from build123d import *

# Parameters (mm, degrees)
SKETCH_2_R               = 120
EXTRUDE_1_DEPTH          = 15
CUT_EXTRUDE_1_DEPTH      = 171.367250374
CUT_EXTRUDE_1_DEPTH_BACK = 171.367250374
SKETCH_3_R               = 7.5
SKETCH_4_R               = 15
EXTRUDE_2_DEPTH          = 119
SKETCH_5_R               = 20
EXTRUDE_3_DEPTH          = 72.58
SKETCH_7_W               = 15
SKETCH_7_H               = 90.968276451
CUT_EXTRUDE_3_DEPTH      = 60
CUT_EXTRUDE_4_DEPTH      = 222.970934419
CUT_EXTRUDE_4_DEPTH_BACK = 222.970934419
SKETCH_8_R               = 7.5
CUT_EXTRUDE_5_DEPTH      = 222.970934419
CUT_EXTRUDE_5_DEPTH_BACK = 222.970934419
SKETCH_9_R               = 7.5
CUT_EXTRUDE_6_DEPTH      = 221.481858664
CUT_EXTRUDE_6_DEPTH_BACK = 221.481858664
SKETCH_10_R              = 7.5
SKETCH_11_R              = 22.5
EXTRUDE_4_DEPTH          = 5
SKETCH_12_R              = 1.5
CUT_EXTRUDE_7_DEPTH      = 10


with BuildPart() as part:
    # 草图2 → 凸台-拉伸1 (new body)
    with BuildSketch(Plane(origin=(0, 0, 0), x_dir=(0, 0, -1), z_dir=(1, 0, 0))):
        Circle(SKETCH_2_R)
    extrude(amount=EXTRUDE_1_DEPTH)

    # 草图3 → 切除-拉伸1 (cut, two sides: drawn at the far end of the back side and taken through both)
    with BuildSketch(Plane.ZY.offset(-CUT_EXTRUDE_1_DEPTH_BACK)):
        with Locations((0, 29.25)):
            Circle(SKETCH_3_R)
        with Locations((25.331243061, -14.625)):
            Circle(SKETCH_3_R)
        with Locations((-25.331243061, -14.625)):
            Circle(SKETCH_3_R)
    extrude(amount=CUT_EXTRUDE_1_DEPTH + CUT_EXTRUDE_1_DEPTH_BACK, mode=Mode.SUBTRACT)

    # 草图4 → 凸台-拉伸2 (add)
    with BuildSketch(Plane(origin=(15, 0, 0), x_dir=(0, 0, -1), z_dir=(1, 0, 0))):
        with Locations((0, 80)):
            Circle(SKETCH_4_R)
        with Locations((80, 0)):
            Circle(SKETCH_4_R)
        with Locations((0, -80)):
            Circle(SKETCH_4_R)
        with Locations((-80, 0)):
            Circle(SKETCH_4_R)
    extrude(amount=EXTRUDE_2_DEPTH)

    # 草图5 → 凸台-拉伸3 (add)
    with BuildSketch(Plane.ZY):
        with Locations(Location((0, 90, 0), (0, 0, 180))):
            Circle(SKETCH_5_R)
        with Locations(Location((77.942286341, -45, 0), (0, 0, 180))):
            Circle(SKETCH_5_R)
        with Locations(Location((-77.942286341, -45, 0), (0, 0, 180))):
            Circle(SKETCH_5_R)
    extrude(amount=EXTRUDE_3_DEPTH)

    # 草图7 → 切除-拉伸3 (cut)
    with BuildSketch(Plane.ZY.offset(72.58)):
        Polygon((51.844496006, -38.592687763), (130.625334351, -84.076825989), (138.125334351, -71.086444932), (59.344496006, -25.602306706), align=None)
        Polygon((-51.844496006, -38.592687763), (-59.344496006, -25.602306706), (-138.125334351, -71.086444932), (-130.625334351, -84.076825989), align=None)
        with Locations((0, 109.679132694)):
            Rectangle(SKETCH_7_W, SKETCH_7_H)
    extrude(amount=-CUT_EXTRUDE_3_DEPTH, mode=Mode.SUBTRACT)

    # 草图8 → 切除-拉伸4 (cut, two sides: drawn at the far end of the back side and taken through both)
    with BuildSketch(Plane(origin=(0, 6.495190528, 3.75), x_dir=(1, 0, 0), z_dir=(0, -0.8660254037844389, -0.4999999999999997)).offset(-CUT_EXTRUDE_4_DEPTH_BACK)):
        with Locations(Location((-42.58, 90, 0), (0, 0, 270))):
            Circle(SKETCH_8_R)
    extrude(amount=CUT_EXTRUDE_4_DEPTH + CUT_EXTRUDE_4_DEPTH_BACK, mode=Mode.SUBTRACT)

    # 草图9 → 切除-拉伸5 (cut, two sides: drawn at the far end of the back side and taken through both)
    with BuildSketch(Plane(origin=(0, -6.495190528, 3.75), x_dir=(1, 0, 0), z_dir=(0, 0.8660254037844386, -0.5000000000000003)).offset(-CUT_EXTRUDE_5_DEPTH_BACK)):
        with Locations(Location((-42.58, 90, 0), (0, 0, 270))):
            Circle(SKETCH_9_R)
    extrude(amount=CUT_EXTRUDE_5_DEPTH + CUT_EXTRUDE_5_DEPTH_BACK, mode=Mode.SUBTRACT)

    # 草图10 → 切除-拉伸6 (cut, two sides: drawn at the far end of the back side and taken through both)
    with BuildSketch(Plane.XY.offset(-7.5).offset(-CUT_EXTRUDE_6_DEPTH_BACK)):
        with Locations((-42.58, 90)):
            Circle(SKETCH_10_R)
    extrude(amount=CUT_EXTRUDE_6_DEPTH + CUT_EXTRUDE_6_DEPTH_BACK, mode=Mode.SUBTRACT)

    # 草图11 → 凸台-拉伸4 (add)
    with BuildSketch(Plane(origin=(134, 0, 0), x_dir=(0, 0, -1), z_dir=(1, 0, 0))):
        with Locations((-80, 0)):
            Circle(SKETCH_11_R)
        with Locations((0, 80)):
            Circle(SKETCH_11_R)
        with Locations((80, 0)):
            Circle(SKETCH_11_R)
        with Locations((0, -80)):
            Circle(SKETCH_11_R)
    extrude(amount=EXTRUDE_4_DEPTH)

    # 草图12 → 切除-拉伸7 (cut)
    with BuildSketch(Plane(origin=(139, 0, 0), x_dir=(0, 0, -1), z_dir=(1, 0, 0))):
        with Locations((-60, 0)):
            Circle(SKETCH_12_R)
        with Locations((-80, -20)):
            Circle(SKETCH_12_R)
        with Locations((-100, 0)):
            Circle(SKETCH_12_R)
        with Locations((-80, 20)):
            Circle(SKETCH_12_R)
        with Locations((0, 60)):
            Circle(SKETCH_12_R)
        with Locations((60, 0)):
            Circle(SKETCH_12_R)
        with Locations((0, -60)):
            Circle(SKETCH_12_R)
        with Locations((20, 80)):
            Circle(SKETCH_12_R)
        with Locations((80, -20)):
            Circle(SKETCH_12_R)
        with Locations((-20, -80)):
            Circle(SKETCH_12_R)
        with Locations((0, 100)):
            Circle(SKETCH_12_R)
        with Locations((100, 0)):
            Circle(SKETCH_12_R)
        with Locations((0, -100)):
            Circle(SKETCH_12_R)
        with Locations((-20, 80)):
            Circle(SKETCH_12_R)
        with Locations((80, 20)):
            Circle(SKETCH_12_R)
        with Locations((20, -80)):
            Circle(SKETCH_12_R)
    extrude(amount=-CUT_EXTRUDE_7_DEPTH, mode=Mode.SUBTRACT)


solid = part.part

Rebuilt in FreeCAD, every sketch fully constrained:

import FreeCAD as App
import Part
import Sketcher

V = App.Vector
Q = App.Units.Quantity


def add_polygon(sketch, points):
    """Adds a closed chain of lines whose ends are joined by coincident constraints."""
    first, n = sketch.GeometryCount, len(points)
    for a, b in zip(points, points[1:] + points[:1]):
        sketch.addGeometry(Part.LineSegment(App.Vector(*a, 0), App.Vector(*b, 0)), False)
    for i in range(n):
        sketch.addConstraint(Sketcher.Constraint("Coincident", first + i, 2, first + (i + 1) % n, 1))

doc = App.newDocument("Part")
body = doc.addObject("PartDesign::Body", "Body")

# Sketch on YZ plane
sketch1 = doc.addObject("Sketcher::SketchObject", "Sketch")
body.addObject(sketch1)
sketch1.AttachmentSupport = (doc.YZ_Plane, [""])
sketch1.MapMode = "FlatFace"
sketch1.addGeometry(Part.Circle(V(0, 0, 0), V(0, 0, 1), 120), False)
sketch1.addConstraint(Sketcher.Constraint("Coincident", 0, 3, -1, 1))
sketch1.addConstraint(Sketcher.Constraint("Diameter", 0, 240.0))
pad1 = doc.addObject("PartDesign::Pad", "Pad")
body.addObject(pad1)
pad1.Profile = sketch1
pad1.Length = 15

# Sketch on YZ plane
sketch2 = doc.addObject("Sketcher::SketchObject", "Sketch001")
body.addObject(sketch2)
sketch2.AttachmentSupport = (doc.YZ_Plane, [""])
sketch2.MapMode = "FlatFace"
sketch2.addGeometry(Part.Circle(V(29, 0, 0), V(0, 0, 1), 8), False)
sketch2.addGeometry(Part.Circle(V(-15, 25, 0), V(0, 0, 1), 8), False)
sketch2.addGeometry(Part.Circle(V(-15, -25, 0), V(0, 0, 1), 8), False)
sketch2.addConstraint(Sketcher.Constraint("Equal", 0, 1))
sketch2.addConstraint(Sketcher.Constraint("Equal", 1, 2))
sketch2.addConstraint(Sketcher.Constraint("Symmetric", 1, 3, 2, 3, -1))
sketch2.addConstraint(Sketcher.Constraint("PointOnObject", 0, 3, -1))
sketch2.addConstraint(Sketcher.Constraint("Diameter", 0, 15.0))
sketch2.addConstraint(Sketcher.Constraint("DistanceX", -1, 1, 0, 3, 29.25))
sketch2.addConstraint(Sketcher.Constraint("DistanceX", 1, 3, -1, 1, 14.625))
sketch2.addConstraint(Sketcher.Constraint("DistanceY", -1, 1, 1, 3, 25.331243))
pocket1 = doc.addObject("PartDesign::Pocket", "Pocket")
body.addObject(pocket1)
pocket1.Profile = sketch2
pocket1.Type = "ThroughAll"
pocket1.Midplane = True

# Sketch on YZ plane
sketch3 = doc.addObject("Sketcher::SketchObject", "Sketch002")
body.addObject(sketch3)
sketch3.AttachmentSupport = (doc.YZ_Plane, [""])
sketch3.MapMode = "FlatFace"
sketch3.AttachmentOffset = App.Placement(V(0, 0, 15), App.Rotation())
sketch3.addGeometry(Part.Circle(V(80, 0, 0), V(0, 0, 1), 15), False)
sketch3.addGeometry(Part.Circle(V(0, -80, 0), V(0, 0, 1), 15), False)
sketch3.addGeometry(Part.Circle(V(-80, 0, 0), V(0, 0, 1), 15), False)
sketch3.addGeometry(Part.Circle(V(0, 80, 0), V(0, 0, 1), 15), False)
sketch3.addConstraint(Sketcher.Constraint("Equal", 0, 1))
sketch3.addConstraint(Sketcher.Constraint("Equal", 1, 2))
sketch3.addConstraint(Sketcher.Constraint("Equal", 2, 3))
sketch3.addConstraint(Sketcher.Constraint("Symmetric", 0, 3, 2, 3, -1, 1))
sketch3.addConstraint(Sketcher.Constraint("Symmetric", 1, 3, 3, 3, -1, 1))
sketch3.addConstraint(Sketcher.Constraint("PointOnObject", 0, 3, -1))
sketch3.addConstraint(Sketcher.Constraint("PointOnObject", 1, 3, -2))
sketch3.addConstraint(Sketcher.Constraint("Diameter", 0, 30.0))
sketch3.addConstraint(Sketcher.Constraint("DistanceX", -1, 1, 0, 3, 80.0))
sketch3.addConstraint(Sketcher.Constraint("DistanceY", 1, 3, -1, 1, 80.0))
pad2 = doc.addObject("PartDesign::Pad", "Pad001")
body.addObject(pad2)
pad2.Profile = sketch3
pad2.Length = 119

# Sketch on YZ plane
sketch4 = doc.addObject("Sketcher::SketchObject", "Sketch003")
body.addObject(sketch4)
sketch4.AttachmentSupport = (doc.YZ_Plane, [""])
sketch4.MapMode = "FlatFace"
sketch4.addGeometry(Part.Circle(V(90, 0, 0), V(0, 0, 1), 20), False)
sketch4.addGeometry(Part.Circle(V(-45, 78, 0), V(0, 0, 1), 20), False)
sketch4.addGeometry(Part.Circle(V(-45, -78, 0), V(0, 0, 1), 20), False)
sketch4.addConstraint(Sketcher.Constraint("Equal", 0, 1))
sketch4.addConstraint(Sketcher.Constraint("Equal", 1, 2))
sketch4.addConstraint(Sketcher.Constraint("Symmetric", 1, 3, 2, 3, -1))
sketch4.addConstraint(Sketcher.Constraint("PointOnObject", 0, 3, -1))
sketch4.addConstraint(Sketcher.Constraint("Diameter", 0, 40.0))
sketch4.addConstraint(Sketcher.Constraint("DistanceX", -1, 1, 0, 3, 90.0))
sketch4.addConstraint(Sketcher.Constraint("DistanceX", 1, 3, -1, 1, 45.0))
sketch4.addConstraint(Sketcher.Constraint("DistanceY", -1, 1, 1, 3, 77.942286))
pad3 = doc.addObject("PartDesign::Pad", "Pad002")
body.addObject(pad3)
pad3.Profile = sketch4
pad3.Length = 72.58
pad3.Reversed = True

# Sketch on YZ plane
sketch5 = doc.addObject("Sketcher::SketchObject", "Sketch004")
body.addObject(sketch5)
sketch5.AttachmentSupport = (doc.YZ_Plane, [""])
sketch5.MapMode = "FlatFace"
sketch5.AttachmentOffset = App.Placement(V(0, 0, -72.58), App.Rotation())
add_polygon(sketch5, [(-39, 52), (-84, 131), (-71, 138), (-26, 59)])  # lines 0-3
add_polygon(sketch5, [(-39, -52), (-26, -59), (-71, -138), (-84, -131)])  # lines 4-7
add_polygon(sketch5, [(155, -8), (64, -8), (64, 8), (155, 8)])  # lines 8-11
sketch5.addConstraint(Sketcher.Constraint("Horizontal", 8))
sketch5.addConstraint(Sketcher.Constraint("Vertical", 9))
sketch5.addConstraint(Sketcher.Constraint("Horizontal", 10))
sketch5.addConstraint(Sketcher.Constraint("Vertical", 11))
sketch5.addConstraint(Sketcher.Constraint("Symmetric", 2, 2, 4, 2, -1))
sketch5.addConstraint(Sketcher.Constraint("Symmetric", 1, 2, 5, 2, -1))
sketch5.addConstraint(Sketcher.Constraint("Symmetric", 0, 2, 6, 2, -1))
sketch5.addConstraint(Sketcher.Constraint("Symmetric", 3, 2, 7, 2, -1))
sketch5.addConstraint(Sketcher.Constraint("Perpendicular", 0, 1))
sketch5.addConstraint(Sketcher.Constraint("Perpendicular", 1, 2))
sketch5.addConstraint(Sketcher.Constraint("Perpendicular", 2, 3))
sketch5.addConstraint(Sketcher.Constraint("DistanceY", 9, 1, 9, 2, 15.0))
sketch5.addConstraint(Sketcher.Constraint("Angle", 0, Q("120 deg")))
sketch5.addConstraint(Sketcher.Constraint("Distance", 1, 15.0))
sketch5.addConstraint(Sketcher.Constraint("DistanceY", 8, 2, -1, 1, 7.5))
sketch5.addConstraint(Sketcher.Constraint("DistanceX", 4, 2, 8, 2, 89.797301))
sketch5.addConstraint(Sketcher.Constraint("DistanceX", 8, 2, 8, 1, 90.968276))
sketch5.addConstraint(Sketcher.Constraint("DistanceX", -1, 1, 10, 2, 155.163271))
sketch5.addConstraint(Sketcher.Constraint("DistanceX", 1, 2, 2, 2, 45.484138))
sketch5.addConstraint(Sketcher.Constraint("DistanceY", 4, 2, 0, 2, 189.96983))
pocket2 = doc.addObject("PartDesign::Pocket", "Pocket001")
body.addObject(pocket2)
pocket2.Profile = sketch5
pocket2.Length = 60
pocket2.Reversed = True

# Sketch on an angled plane
sketch6 = doc.addObject("Sketcher::SketchObject", "Sketch005")
body.addObject(sketch6)
sketch6.Placement = App.Placement(V(0, 6.49519, 3.75), App.Rotation(V(1, 0, 0), V(0, -0.5, 0.866025404), V(0, -0.866025404, -0.5), "ZXY"))
sketch6.addGeometry(Part.Circle(V(-43, 90, 0), V(0, 0, 1), 8), False)
sketch6.addConstraint(Sketcher.Constraint("Diameter", 0, 15.0))
sketch6.addConstraint(Sketcher.Constraint("DistanceY", -1, 1, 0, 3, 90.0))
sketch6.addConstraint(Sketcher.Constraint("DistanceX", 0, 3, -1, 1, 42.58))
pocket3 = doc.addObject("PartDesign::Pocket", "Pocket002")
body.addObject(pocket3)
pocket3.Profile = sketch6
pocket3.Type = "ThroughAll"
pocket3.Midplane = True

# Sketch on an angled plane
sketch7 = doc.addObject("Sketcher::SketchObject", "Sketch006")
body.addObject(sketch7)
sketch7.Placement = App.Placement(V(0, -6.49519, 3.75), App.Rotation(V(1, 0, 0), V(0, -0.5, -0.866025404), V(0, 0.866025404, -0.5), "ZXY"))
sketch7.addGeometry(Part.Circle(V(-43, 90, 0), V(0, 0, 1), 8), False)
sketch7.addConstraint(Sketcher.Constraint("Diameter", 0, 15.0))
sketch7.addConstraint(Sketcher.Constraint("DistanceY", -1, 1, 0, 3, 90.0))
sketch7.addConstraint(Sketcher.Constraint("DistanceX", 0, 3, -1, 1, 42.58))
pocket4 = doc.addObject("PartDesign::Pocket", "Pocket003")
body.addObject(pocket4)
pocket4.Profile = sketch7
pocket4.Type = "ThroughAll"
pocket4.Midplane = True

# Sketch on XY plane
sketch8 = doc.addObject("Sketcher::SketchObject", "Sketch007")
body.addObject(sketch8)
sketch8.AttachmentSupport = (doc.XY_Plane, [""])
sketch8.MapMode = "FlatFace"
sketch8.AttachmentOffset = App.Placement(V(0, 0, -7.5), App.Rotation())
sketch8.addGeometry(Part.Circle(V(-43, 90, 0), V(0, 0, 1), 8), False)
sketch8.addConstraint(Sketcher.Constraint("Diameter", 0, 15.0))
sketch8.addConstraint(Sketcher.Constraint("DistanceY", -1, 1, 0, 3, 90.0))
sketch8.addConstraint(Sketcher.Constraint("DistanceX", 0, 3, -1, 1, 42.58))
pocket5 = doc.addObject("PartDesign::Pocket", "Pocket004")
body.addObject(pocket5)
pocket5.Profile = sketch8
pocket5.Type = "ThroughAll"
pocket5.Midplane = True

# Sketch on YZ plane
sketch9 = doc.addObject("Sketcher::SketchObject", "Sketch008")
body.addObject(sketch9)
sketch9.AttachmentSupport = (doc.YZ_Plane, [""])
sketch9.MapMode = "FlatFace"
sketch9.AttachmentOffset = App.Placement(V(0, 0, 134), App.Rotation())
sketch9.addGeometry(Part.Circle(V(0, 80, 0), V(0, 0, 1), 22), False)
sketch9.addGeometry(Part.Circle(V(80, 0, 0), V(0, 0, 1), 22), False)
sketch9.addGeometry(Part.Circle(V(0, -80, 0), V(0, 0, 1), 22), False)
sketch9.addGeometry(Part.Circle(V(-80, 0, 0), V(0, 0, 1), 22), False)
sketch9.addConstraint(Sketcher.Constraint("Equal", 0, 1))
sketch9.addConstraint(Sketcher.Constraint("Equal", 1, 2))
sketch9.addConstraint(Sketcher.Constraint("Equal", 2, 3))
sketch9.addConstraint(Sketcher.Constraint("Symmetric", 0, 3, 2, 3, -1, 1))
sketch9.addConstraint(Sketcher.Constraint("Symmetric", 1, 3, 3, 3, -1, 1))
sketch9.addConstraint(Sketcher.Constraint("PointOnObject", 0, 3, -2))
sketch9.addConstraint(Sketcher.Constraint("PointOnObject", 1, 3, -1))
sketch9.addConstraint(Sketcher.Constraint("Diameter", 0, 45.0))
sketch9.addConstraint(Sketcher.Constraint("DistanceY", -1, 1, 0, 3, 80.0))
sketch9.addConstraint(Sketcher.Constraint("DistanceX", -1, 1, 1, 3, 80.0))
pad4 = doc.addObject("PartDesign::Pad", "Pad003")
body.addObject(pad4)
pad4.Profile = sketch9
pad4.Length = 5

# Sketch on YZ plane
sketch10 = doc.addObject("Sketcher::SketchObject", "Sketch009")
body.addObject(sketch10)
sketch10.AttachmentSupport = (doc.YZ_Plane, [""])
sketch10.MapMode = "FlatFace"
sketch10.AttachmentOffset = App.Placement(V(0, 0, 139), App.Rotation())
sketch10.addGeometry(Part.Circle(V(0, 60, 0), V(0, 0, 1), 1.5), False)
sketch10.addGeometry(Part.Circle(V(-20, 80, 0), V(0, 0, 1), 1.5), False)
sketch10.addGeometry(Part.Circle(V(0, 100, 0), V(0, 0, 1), 1.5), False)
sketch10.addGeometry(Part.Circle(V(20, 80, 0), V(0, 0, 1), 1.5), False)
sketch10.addGeometry(Part.Circle(V(60, 0, 0), V(0, 0, 1), 1.5), False)
sketch10.addGeometry(Part.Circle(V(0, -60, 0), V(0, 0, 1), 1.5), False)
sketch10.addGeometry(Part.Circle(V(-60, 0, 0), V(0, 0, 1), 1.5), False)
sketch10.addGeometry(Part.Circle(V(80, -20, 0), V(0, 0, 1), 1.5), False)
sketch10.addGeometry(Part.Circle(V(-20, -80, 0), V(0, 0, 1), 1.5), False)
sketch10.addGeometry(Part.Circle(V(-80, 20, 0), V(0, 0, 1), 1.5), False)
sketch10.addGeometry(Part.Circle(V(100, 0, 0), V(0, 0, 1), 1.5), False)
sketch10.addGeometry(Part.Circle(V(0, -100, 0), V(0, 0, 1), 1.5), False)
sketch10.addGeometry(Part.Circle(V(-100, 0, 0), V(0, 0, 1), 1.5), False)
sketch10.addGeometry(Part.Circle(V(80, 20, 0), V(0, 0, 1), 1.5), False)
sketch10.addGeometry(Part.Circle(V(20, -80, 0), V(0, 0, 1), 1.5), False)
sketch10.addGeometry(Part.Circle(V(-80, -20, 0), V(0, 0, 1), 1.5), False)
sketch10.addConstraint(Sketcher.Constraint("Equal", 0, 1))
sketch10.addConstraint(Sketcher.Constraint("Equal", 1, 2))
sketch10.addConstraint(Sketcher.Constraint("Equal", 2, 3))
sketch10.addConstraint(Sketcher.Constraint("Equal", 3, 4))
sketch10.addConstraint(Sketcher.Constraint("Equal", 4, 5))
sketch10.addConstraint(Sketcher.Constraint("Equal", 5, 6))
sketch10.addConstraint(Sketcher.Constraint("Equal", 6, 7))
sketch10.addConstraint(Sketcher.Constraint("Equal", 7, 8))
sketch10.addConstraint(Sketcher.Constraint("Equal", 8, 9))
sketch10.addConstraint(Sketcher.Constraint("Equal", 9, 10))
sketch10.addConstraint(Sketcher.Constraint("Equal", 10, 11))
sketch10.addConstraint(Sketcher.Constraint("Equal", 11, 12))
sketch10.addConstraint(Sketcher.Constraint("Equal", 12, 13))
sketch10.addConstraint(Sketcher.Constraint("Equal", 13, 14))
sketch10.addConstraint(Sketcher.Constraint("Equal", 14, 15))
sketch10.addConstraint(Sketcher.Constraint("Symmetric", 0, 3, 5, 3, -1, 1))
sketch10.addConstraint(Sketcher.Constraint("Symmetric", 4, 3, 6, 3, -1, 1))
sketch10.addConstraint(Sketcher.Constraint("Symmetric", 3, 3, 8, 3, -1, 1))
sketch10.addConstraint(Sketcher.Constraint("Symmetric", 7, 3, 9, 3, -1, 1))
sketch10.addConstraint(Sketcher.Constraint("Symmetric", 2, 3, 11, 3, -1, 1))
sketch10.addConstraint(Sketcher.Constraint("Symmetric", 10, 3, 12, 3, -1, 1))
sketch10.addConstraint(Sketcher.Constraint("Symmetric", 1, 3, 14, 3, -1, 1))
sketch10.addConstraint(Sketcher.Constraint("Symmetric", 13, 3, 15, 3, -1, 1))
sketch10.addConstraint(Sketcher.Constraint("Symmetric", 1, 3, 3, 3, -2))
sketch10.addConstraint(Sketcher.Constraint("Symmetric", 9, 3, 13, 3, -2))
sketch10.addConstraint(Sketcher.Constraint("PointOnObject", 0, 3, -2))
sketch10.addConstraint(Sketcher.Constraint("PointOnObject", 2, 3, -2))
sketch10.addConstraint(Sketcher.Constraint("PointOnObject", 4, 3, -1))
sketch10.addConstraint(Sketcher.Constraint("PointOnObject", 10, 3, -1))
sketch10.addConstraint(Sketcher.Constraint("Diameter", 0, 3.0))
sketch10.addConstraint(Sketcher.Constraint("DistanceY", -1, 1, 0, 3, 60.0))
sketch10.addConstraint(Sketcher.Constraint("DistanceX", 1, 3, -1, 1, 20.0))
sketch10.addConstraint(Sketcher.Constraint("DistanceY", -1, 1, 1, 3, 80.0))
sketch10.addConstraint(Sketcher.Constraint("DistanceY", -1, 1, 2, 3, 100.0))
sketch10.addConstraint(Sketcher.Constraint("DistanceX", -1, 1, 4, 3, 60.0))
sketch10.addConstraint(Sketcher.Constraint("DistanceX", -1, 1, 7, 3, 80.0))
sketch10.addConstraint(Sketcher.Constraint("DistanceY", 7, 3, -1, 1, 20.0))
sketch10.addConstraint(Sketcher.Constraint("DistanceX", -1, 1, 10, 3, 100.0))
pocket6 = doc.addObject("PartDesign::Pocket", "Pocket005")
body.addObject(pocket6)
pocket6.Profile = sketch10
pocket6.Length = 10

doc.recompute()
